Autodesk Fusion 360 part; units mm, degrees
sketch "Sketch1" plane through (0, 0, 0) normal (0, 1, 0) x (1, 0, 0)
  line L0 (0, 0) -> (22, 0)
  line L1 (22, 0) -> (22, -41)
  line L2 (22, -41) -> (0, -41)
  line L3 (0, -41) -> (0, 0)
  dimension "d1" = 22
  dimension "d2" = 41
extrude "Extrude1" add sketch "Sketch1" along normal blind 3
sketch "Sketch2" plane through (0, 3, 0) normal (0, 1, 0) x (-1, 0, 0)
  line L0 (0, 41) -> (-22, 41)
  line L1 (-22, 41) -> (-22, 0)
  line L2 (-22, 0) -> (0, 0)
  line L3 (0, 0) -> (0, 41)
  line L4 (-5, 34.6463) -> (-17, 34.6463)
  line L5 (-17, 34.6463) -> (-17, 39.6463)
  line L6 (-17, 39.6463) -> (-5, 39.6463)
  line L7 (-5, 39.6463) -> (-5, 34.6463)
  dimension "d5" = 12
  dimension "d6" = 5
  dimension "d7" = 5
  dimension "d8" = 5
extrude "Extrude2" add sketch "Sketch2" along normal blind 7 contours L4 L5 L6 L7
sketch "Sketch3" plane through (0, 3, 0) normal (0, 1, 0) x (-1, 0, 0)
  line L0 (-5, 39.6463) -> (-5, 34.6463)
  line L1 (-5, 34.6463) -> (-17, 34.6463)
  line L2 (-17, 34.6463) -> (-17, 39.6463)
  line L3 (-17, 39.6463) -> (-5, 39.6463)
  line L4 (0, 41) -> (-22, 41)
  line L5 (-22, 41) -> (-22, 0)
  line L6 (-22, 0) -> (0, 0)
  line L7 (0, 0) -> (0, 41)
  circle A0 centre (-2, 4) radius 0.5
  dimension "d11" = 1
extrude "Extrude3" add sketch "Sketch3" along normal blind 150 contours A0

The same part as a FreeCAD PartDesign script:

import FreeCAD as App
import Part
import Sketcher
Q = App.Units.Quantity

doc = App.newDocument("Part")
body = doc.addObject("PartDesign::Body", "Body")

# Sketch on XZ plane
sketch1 = doc.addObject("Sketcher::SketchObject", "Sketch")
body.addObject(sketch1)
sketch1.AttachmentSupport = (doc.XZ_Plane, [""])
sketch1.MapMode = "FlatFace"
sketch1.addGeometry([
    Part.LineSegment(App.Vector(22, 0, 0), App.Vector(0, 0, 0)),
    Part.LineSegment(App.Vector(0, 0, 0), App.Vector(0, 41, 0)),
    Part.LineSegment(App.Vector(0, 41, 0), App.Vector(22, 41, 0)),
    Part.LineSegment(App.Vector(22, 41, 0), App.Vector(22, 0, 0)),
], False)
sketch1.addConstraint([
    Sketcher.Constraint("Coincident", 0, 2, 1, 1),
    Sketcher.Constraint("Coincident", 1, 2, 2, 1),
    Sketcher.Constraint("Coincident", 2, 2, 3, 1),
    Sketcher.Constraint("Coincident", 3, 2, 0, 1),
    Sketcher.Constraint("Horizontal", 0),
    Sketcher.Constraint("Vertical", 1),
    Sketcher.Constraint("Horizontal", 2),
    Sketcher.Constraint("Vertical", 3),
    Sketcher.Constraint("Coincident", 0, 2, -1, 1),
    Sketcher.Constraint("DistanceX", 0, 2, 0, 1, Q("22 mm")),
    Sketcher.Constraint("DistanceY", 1, 1, 1, 2, Q("41 mm")),
])
pad1 = doc.addObject("PartDesign::Pad", "Pad")
body.addObject(pad1)
pad1.Profile = sketch1
pad1.Length = 3
pad1.Reversed = True

# Sketch on XZ plane
sketch2 = doc.addObject("Sketcher::SketchObject", "Sketch001")
body.addObject(sketch2)
sketch2.AttachmentSupport = (doc.XZ_Plane, [""])
sketch2.MapMode = "FlatFace"
sketch2.AttachmentOffset = App.Placement(App.Vector(0, 0, -3), App.Rotation())
sketch2.addGeometry([
    Part.LineSegment(App.Vector(17, 35, 0), App.Vector(5, 35, 0)),
    Part.LineSegment(App.Vector(5, 35, 0), App.Vector(5, 40, 0)),
    Part.LineSegment(App.Vector(5, 40, 0), App.Vector(17, 40, 0)),
    Part.LineSegment(App.Vector(17, 40, 0), App.Vector(17, 35, 0)),
], False)
sketch2.addConstraint([
    Sketcher.Constraint("Coincident", 0, 2, 1, 1),
    Sketcher.Constraint("Coincident", 1, 2, 2, 1),
    Sketcher.Constraint("Coincident", 2, 2, 3, 1),
    Sketcher.Constraint("Coincident", 3, 2, 0, 1),
    Sketcher.Constraint("Horizontal", 0),
    Sketcher.Constraint("Vertical", 1),
    Sketcher.Constraint("Horizontal", 2),
    Sketcher.Constraint("Vertical", 3),
    Sketcher.Constraint("DistanceX", 0, 2, 0, 1, Q("12 mm")),
    Sketcher.Constraint("DistanceY", 1, 1, 1, 2, Q("5 mm")),
    Sketcher.Constraint("DistanceX", -1, 1, 0, 2, Q("5 mm")),
    Sketcher.Constraint("DistanceY", -1, 1, 0, 2, Q("34.6463 mm")),
])
pad2 = doc.addObject("PartDesign::Pad", "Pad001")
body.addObject(pad2)
pad2.Profile = sketch2
pad2.Length = 7
pad2.Reversed = True

# Sketch on XZ plane
sketch3 = doc.addObject("Sketcher::SketchObject", "Sketch002")
body.addObject(sketch3)
sketch3.AttachmentSupport = (doc.XZ_Plane, [""])
sketch3.MapMode = "FlatFace"
sketch3.AttachmentOffset = App.Placement(App.Vector(0, 0, -3), App.Rotation())
sketch3.addGeometry(Part.Circle(App.Vector(2, 4, 0), App.Vector(0, 0, 1), 0.5), False)
sketch3.addConstraint([
    Sketcher.Constraint("Diameter", 0, Q("1 mm")),
    Sketcher.Constraint("DistanceX", -1, 1, 0, 3, Q("2 mm")),
    Sketcher.Constraint("DistanceY", -1, 1, 0, 3, Q("4 mm")),
])
pad3 = doc.addObject("PartDesign::Pad", "Pad002")
body.addObject(pad3)
pad3.Profile = sketch3
pad3.Length = 150
pad3.Reversed = True

doc.recompute()
